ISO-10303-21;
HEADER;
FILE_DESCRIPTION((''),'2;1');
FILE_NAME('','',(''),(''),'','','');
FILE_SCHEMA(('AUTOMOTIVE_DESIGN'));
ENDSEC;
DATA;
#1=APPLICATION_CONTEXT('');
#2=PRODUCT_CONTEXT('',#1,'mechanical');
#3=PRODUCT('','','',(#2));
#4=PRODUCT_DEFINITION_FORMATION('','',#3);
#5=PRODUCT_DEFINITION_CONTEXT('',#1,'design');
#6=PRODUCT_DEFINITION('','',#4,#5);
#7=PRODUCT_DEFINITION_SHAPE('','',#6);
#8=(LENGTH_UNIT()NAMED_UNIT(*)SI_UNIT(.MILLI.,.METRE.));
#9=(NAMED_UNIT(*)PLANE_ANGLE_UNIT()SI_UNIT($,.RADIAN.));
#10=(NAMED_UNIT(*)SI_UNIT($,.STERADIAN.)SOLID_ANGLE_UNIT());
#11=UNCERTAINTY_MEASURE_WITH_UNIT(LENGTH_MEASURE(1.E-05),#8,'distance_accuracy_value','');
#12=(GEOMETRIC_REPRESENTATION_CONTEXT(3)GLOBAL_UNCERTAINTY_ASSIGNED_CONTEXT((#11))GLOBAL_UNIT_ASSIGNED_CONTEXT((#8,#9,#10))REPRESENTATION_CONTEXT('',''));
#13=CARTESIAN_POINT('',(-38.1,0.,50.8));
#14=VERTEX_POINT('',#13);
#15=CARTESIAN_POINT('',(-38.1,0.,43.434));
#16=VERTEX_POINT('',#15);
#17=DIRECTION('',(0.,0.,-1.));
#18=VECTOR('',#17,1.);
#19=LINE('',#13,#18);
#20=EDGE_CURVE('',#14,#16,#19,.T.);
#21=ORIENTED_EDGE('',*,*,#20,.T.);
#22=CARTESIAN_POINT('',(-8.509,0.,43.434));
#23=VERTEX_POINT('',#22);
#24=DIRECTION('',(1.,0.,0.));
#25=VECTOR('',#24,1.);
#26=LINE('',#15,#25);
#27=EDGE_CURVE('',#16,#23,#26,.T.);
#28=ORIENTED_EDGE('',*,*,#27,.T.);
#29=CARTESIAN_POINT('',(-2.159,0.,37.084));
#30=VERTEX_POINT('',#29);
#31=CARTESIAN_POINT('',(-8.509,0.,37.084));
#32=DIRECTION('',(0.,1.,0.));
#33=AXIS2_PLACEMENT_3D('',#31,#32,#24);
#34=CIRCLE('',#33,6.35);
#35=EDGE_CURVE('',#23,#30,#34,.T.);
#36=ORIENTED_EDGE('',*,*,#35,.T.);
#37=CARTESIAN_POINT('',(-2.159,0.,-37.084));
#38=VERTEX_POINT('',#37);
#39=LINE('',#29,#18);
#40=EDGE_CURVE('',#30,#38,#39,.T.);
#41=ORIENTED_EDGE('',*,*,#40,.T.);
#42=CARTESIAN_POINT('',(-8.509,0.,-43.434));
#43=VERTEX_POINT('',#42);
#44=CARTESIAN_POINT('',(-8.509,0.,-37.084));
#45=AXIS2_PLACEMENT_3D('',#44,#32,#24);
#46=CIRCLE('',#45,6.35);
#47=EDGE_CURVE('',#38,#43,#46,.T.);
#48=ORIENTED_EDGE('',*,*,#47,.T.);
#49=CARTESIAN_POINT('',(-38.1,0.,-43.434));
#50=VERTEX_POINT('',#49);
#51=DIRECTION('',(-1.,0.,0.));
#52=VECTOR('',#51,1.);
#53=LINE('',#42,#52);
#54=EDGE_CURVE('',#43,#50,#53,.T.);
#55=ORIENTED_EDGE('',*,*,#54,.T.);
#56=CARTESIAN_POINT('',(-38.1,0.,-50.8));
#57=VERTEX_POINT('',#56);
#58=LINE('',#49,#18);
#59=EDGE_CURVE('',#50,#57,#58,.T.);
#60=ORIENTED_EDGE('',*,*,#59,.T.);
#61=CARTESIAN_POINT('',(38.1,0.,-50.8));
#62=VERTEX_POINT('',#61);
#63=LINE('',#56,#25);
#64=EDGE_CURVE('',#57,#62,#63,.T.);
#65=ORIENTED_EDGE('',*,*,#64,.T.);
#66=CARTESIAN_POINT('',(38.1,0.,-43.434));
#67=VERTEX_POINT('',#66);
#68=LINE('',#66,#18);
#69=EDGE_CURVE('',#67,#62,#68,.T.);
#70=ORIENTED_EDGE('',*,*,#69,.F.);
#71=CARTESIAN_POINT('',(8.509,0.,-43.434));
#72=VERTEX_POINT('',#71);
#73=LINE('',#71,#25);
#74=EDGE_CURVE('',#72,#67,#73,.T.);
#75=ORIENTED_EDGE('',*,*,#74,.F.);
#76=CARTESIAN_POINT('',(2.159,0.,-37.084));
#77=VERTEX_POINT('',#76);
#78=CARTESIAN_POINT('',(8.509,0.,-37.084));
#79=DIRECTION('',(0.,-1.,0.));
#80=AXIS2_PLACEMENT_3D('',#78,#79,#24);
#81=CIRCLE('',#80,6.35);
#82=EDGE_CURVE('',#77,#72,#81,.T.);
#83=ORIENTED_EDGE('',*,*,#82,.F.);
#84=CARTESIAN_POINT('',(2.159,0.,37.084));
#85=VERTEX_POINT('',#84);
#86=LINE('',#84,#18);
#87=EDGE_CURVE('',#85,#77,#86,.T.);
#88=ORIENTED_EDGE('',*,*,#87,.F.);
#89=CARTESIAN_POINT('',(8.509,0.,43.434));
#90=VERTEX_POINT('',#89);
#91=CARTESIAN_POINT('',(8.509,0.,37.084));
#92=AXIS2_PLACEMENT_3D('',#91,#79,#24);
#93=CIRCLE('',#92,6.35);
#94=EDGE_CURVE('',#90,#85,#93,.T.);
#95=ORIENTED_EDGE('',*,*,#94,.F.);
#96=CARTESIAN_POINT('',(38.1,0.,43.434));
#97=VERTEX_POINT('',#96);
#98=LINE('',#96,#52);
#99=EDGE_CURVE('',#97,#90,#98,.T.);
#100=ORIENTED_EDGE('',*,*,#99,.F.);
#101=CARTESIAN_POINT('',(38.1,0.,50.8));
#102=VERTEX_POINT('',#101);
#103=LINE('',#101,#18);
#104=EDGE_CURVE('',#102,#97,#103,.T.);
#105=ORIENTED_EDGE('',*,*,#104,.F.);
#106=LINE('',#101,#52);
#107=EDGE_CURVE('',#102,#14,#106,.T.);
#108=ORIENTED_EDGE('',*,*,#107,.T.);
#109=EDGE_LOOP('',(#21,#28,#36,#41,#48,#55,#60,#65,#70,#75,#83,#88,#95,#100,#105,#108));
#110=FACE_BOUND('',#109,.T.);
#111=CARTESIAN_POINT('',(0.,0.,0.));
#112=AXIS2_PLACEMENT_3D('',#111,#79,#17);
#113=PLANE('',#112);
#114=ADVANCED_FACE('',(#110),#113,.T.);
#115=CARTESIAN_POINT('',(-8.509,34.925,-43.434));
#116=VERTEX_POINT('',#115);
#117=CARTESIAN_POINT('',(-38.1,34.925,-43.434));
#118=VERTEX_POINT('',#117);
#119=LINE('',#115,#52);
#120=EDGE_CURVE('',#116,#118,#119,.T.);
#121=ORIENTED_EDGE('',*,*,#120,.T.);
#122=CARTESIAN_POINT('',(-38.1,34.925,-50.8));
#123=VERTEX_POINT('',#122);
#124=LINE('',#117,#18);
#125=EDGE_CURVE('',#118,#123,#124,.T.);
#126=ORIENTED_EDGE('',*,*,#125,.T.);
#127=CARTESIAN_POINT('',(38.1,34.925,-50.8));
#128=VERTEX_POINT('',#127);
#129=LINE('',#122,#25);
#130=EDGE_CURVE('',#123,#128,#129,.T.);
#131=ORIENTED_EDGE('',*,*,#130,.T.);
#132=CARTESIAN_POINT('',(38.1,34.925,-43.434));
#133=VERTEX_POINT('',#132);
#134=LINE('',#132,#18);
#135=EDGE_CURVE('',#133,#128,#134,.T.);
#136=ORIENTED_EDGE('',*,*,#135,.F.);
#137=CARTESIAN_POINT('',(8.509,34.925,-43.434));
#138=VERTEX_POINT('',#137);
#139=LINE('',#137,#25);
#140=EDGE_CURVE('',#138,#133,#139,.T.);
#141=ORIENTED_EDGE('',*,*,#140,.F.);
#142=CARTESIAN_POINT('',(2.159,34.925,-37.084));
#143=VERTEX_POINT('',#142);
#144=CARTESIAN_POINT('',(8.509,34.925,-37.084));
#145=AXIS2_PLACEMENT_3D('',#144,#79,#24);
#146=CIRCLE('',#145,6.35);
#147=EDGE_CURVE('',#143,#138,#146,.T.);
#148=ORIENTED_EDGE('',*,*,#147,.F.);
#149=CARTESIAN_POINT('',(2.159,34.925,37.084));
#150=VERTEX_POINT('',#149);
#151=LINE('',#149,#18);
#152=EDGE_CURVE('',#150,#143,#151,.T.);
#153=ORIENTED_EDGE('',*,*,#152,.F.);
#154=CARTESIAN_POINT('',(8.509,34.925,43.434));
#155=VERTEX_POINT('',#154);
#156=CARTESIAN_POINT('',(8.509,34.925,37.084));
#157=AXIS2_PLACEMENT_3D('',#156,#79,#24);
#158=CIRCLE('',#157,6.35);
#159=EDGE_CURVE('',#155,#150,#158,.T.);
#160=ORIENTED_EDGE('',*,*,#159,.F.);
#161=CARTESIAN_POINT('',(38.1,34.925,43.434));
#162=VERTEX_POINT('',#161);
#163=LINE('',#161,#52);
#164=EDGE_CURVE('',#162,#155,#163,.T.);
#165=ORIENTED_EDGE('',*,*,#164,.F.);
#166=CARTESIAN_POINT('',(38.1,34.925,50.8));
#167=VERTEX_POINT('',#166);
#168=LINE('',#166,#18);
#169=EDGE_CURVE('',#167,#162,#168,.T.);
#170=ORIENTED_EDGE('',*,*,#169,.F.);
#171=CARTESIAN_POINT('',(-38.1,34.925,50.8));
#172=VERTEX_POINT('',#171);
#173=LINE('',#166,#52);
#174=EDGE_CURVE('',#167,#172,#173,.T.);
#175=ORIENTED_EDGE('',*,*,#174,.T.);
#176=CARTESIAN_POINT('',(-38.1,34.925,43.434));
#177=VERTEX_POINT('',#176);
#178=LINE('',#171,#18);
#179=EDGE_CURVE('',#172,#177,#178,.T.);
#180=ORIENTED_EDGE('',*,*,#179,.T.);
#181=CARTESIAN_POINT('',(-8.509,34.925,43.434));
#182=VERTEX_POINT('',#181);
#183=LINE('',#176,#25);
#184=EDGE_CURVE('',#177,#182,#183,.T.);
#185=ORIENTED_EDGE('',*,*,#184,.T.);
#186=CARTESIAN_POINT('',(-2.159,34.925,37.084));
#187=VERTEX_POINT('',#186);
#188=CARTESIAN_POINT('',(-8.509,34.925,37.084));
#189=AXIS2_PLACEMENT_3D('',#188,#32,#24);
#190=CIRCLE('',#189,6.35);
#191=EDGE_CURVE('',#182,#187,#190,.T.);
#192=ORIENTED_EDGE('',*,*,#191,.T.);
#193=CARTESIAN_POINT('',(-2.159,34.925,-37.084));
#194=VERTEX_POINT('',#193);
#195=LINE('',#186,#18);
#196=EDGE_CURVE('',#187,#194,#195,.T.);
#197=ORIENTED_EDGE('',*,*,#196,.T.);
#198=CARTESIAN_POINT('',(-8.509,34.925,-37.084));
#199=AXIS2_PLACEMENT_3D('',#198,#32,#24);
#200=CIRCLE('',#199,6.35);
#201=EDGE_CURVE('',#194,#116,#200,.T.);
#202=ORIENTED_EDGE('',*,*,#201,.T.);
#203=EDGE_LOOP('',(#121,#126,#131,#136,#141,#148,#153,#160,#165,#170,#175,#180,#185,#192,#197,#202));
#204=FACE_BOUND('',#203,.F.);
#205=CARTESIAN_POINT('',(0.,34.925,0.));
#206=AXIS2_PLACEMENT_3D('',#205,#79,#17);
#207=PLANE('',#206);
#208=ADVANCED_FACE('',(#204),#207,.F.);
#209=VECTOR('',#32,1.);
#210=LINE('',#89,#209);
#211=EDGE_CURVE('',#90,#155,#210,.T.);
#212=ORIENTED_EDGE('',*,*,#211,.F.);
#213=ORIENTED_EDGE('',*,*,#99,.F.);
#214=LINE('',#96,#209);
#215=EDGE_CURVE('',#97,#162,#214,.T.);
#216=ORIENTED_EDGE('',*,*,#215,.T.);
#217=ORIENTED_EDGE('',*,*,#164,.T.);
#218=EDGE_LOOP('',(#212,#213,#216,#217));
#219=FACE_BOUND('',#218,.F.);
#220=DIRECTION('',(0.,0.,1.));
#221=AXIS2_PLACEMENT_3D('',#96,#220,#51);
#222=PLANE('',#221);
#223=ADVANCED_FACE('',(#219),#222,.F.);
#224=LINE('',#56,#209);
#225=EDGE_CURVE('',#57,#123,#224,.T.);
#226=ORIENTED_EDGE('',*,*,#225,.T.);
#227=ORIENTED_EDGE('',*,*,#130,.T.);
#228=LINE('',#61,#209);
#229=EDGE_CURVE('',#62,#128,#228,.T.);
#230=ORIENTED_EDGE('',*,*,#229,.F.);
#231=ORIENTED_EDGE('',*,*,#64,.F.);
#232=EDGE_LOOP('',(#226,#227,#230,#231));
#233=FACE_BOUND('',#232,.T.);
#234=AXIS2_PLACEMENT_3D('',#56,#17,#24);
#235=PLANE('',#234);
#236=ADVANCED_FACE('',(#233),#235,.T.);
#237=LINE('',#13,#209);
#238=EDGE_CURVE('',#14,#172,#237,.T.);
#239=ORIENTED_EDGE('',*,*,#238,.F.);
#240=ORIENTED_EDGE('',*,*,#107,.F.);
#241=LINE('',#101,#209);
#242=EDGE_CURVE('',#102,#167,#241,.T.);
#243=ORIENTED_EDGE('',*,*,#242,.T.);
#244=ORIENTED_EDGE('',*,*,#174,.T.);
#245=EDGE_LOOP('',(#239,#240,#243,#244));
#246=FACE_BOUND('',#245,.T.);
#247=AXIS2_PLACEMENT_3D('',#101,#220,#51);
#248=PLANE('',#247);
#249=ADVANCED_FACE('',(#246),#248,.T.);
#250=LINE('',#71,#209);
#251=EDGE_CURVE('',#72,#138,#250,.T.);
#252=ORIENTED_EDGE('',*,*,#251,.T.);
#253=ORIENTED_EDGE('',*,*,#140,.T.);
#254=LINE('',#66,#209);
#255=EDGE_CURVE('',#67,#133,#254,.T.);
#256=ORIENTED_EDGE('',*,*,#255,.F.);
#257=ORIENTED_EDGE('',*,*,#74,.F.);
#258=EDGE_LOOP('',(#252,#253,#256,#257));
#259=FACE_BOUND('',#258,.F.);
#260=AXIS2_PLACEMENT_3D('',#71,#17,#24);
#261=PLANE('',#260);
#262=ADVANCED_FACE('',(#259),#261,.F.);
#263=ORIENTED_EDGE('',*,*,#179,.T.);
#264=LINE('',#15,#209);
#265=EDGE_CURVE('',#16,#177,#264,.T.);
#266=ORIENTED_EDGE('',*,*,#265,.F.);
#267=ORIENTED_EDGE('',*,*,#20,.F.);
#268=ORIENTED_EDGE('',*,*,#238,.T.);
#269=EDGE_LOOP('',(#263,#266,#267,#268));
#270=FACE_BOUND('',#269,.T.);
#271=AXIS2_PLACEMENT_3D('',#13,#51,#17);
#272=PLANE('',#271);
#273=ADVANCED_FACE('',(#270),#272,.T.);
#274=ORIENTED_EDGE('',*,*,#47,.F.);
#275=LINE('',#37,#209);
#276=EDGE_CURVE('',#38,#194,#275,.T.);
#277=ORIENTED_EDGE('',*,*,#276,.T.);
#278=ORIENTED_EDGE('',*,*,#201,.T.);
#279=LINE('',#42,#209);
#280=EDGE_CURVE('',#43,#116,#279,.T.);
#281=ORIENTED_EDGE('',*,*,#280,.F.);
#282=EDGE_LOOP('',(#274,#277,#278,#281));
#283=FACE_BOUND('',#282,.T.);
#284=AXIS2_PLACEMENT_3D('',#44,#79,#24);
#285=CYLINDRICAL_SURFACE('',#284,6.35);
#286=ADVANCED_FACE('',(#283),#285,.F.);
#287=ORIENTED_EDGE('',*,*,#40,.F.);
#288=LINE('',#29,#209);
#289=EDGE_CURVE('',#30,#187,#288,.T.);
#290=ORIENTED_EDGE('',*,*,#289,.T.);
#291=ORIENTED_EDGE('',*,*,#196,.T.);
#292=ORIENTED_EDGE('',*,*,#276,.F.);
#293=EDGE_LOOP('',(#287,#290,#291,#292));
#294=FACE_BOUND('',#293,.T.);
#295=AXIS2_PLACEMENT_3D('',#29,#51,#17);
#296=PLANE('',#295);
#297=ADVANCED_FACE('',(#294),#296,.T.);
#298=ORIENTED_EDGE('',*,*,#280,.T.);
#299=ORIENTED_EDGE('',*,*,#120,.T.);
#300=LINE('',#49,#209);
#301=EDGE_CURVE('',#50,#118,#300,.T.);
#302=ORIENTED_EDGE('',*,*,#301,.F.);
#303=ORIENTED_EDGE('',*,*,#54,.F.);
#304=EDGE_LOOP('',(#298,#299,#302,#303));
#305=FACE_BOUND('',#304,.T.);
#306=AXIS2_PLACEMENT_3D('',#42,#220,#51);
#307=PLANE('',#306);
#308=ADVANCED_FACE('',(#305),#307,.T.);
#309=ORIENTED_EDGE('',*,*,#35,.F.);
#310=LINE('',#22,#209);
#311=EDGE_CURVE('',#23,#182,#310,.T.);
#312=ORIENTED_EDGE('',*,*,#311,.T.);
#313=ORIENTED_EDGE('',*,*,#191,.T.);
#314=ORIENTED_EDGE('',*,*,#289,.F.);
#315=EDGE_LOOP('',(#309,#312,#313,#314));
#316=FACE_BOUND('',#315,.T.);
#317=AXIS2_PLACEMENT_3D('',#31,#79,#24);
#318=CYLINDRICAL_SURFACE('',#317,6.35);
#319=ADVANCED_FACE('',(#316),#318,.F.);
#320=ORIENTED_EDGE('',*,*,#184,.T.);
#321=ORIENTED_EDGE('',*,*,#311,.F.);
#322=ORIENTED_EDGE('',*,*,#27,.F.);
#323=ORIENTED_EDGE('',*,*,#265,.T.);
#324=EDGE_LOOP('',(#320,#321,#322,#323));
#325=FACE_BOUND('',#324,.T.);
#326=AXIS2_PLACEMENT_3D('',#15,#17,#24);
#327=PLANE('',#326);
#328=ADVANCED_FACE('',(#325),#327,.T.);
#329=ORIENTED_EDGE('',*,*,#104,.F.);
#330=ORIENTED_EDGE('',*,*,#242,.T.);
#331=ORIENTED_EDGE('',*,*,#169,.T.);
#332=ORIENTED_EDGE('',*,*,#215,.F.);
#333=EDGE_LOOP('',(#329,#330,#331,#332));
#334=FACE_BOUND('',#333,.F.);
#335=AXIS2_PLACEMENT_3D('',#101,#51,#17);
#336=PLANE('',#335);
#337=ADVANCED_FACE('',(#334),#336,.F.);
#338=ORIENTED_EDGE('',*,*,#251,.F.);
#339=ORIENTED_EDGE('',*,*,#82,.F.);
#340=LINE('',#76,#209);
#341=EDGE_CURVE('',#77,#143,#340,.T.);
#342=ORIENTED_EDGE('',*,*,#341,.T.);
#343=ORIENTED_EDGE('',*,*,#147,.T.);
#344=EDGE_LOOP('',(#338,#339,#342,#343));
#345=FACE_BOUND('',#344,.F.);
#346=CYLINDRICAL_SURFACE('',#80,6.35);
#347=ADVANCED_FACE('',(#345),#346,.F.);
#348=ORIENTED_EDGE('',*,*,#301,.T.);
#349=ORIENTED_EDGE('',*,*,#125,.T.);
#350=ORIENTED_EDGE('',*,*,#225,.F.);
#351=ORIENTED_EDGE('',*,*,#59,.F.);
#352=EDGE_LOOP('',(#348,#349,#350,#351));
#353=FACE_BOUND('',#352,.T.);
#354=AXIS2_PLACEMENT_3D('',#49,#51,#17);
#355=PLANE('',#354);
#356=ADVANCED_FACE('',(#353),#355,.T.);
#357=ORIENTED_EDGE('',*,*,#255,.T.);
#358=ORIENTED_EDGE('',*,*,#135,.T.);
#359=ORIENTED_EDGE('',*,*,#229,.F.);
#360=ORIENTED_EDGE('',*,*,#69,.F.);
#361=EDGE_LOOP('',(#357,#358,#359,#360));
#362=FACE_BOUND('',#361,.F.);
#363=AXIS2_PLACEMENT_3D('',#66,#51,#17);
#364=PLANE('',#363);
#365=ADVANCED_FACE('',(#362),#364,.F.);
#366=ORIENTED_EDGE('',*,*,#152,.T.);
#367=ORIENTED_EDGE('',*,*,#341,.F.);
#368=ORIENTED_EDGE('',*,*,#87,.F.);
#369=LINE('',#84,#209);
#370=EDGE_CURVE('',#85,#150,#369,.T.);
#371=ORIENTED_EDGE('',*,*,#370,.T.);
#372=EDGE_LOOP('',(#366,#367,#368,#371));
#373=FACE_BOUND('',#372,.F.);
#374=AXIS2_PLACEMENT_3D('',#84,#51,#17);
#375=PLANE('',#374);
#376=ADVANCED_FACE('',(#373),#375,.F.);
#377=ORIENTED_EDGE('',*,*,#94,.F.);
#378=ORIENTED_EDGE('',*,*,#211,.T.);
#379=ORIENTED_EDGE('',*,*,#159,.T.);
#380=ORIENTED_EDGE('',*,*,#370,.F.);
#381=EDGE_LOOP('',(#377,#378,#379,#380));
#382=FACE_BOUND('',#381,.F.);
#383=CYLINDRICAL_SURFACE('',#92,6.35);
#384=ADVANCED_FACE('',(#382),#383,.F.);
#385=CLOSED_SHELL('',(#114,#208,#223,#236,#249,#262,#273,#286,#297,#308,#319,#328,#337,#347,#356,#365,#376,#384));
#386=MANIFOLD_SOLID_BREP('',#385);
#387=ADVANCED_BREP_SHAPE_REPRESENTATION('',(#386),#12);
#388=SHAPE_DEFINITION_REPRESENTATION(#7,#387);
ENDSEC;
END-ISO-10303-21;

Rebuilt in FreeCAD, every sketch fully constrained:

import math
import FreeCAD as App
import Part
import Sketcher
Q = App.Units.Quantity

doc = App.newDocument("Part")
body = doc.addObject("PartDesign::Body", "Body")

# Sketch on XZ plane
sketch1 = body.newObject("Sketcher::SketchObject", "Sketch")
sketch1.AttachmentSupport = (doc.getObject("XZ_Plane"), [""])
sketch1.MapMode = "FlatFace"
sketch1.addGeometry(Part.LineSegment(App.Vector(38, 43, 0), App.Vector(38, 51, 0)), False)
sketch1.addGeometry(Part.LineSegment(App.Vector(38, 51, 0), App.Vector(-38, 51, 0)), False)
sketch1.addGeometry(Part.LineSegment(App.Vector(-38, 51, 0), App.Vector(-38, 43, 0)), False)
sketch1.addGeometry(Part.LineSegment(App.Vector(-38, 43, 0), App.Vector(-9, 43, 0)), False)
sketch1.addGeometry(Part.ArcOfCircle(Part.Circle(App.Vector(-9, 37, 0), App.Vector(0, 0, 1), 6), math.radians(0), math.radians(90)), False)
sketch1.addGeometry(Part.LineSegment(App.Vector(-2, 37, 0), App.Vector(-2, -37, 0)), False)
sketch1.addGeometry(Part.ArcOfCircle(Part.Circle(App.Vector(-9, -37, 0), App.Vector(0, 0, 1), 6), math.radians(-90), math.radians(0)), False)
sketch1.addGeometry(Part.LineSegment(App.Vector(-9, -43, 0), App.Vector(-38, -43, 0)), False)
sketch1.addGeometry(Part.LineSegment(App.Vector(-38, -43, 0), App.Vector(-38, -51, 0)), False)
sketch1.addGeometry(Part.LineSegment(App.Vector(-38, -51, 0), App.Vector(38, -51, 0)), False)
sketch1.addGeometry(Part.LineSegment(App.Vector(38, -51, 0), App.Vector(38, -43, 0)), False)
sketch1.addGeometry(Part.LineSegment(App.Vector(38, -43, 0), App.Vector(9, -43, 0)), False)
sketch1.addGeometry(Part.ArcOfCircle(Part.Circle(App.Vector(9, -37, 0), App.Vector(0, 0, 1), 6), math.radians(180), math.radians(270)), False)
sketch1.addGeometry(Part.LineSegment(App.Vector(2, -37, 0), App.Vector(2, 37, 0)), False)
sketch1.addGeometry(Part.ArcOfCircle(Part.Circle(App.Vector(9, 37, 0), App.Vector(0, 0, 1), 6), math.radians(90), math.radians(180)), False)
sketch1.addGeometry(Part.LineSegment(App.Vector(9, 43, 0), App.Vector(38, 43, 0)), False)
sketch1.addConstraint(Sketcher.Constraint("Coincident", 0, 2, 1, 1))
sketch1.addConstraint(Sketcher.Constraint("Coincident", 1, 2, 2, 1))
sketch1.addConstraint(Sketcher.Constraint("Coincident", 2, 2, 3, 1))
sketch1.addConstraint(Sketcher.Constraint("Tangent", 3, 2, 4, 2))
sketch1.addConstraint(Sketcher.Constraint("Tangent", 4, 1, 5, 1))
sketch1.addConstraint(Sketcher.Constraint("Tangent", 5, 2, 6, 2))
sketch1.addConstraint(Sketcher.Constraint("Tangent", 6, 1, 7, 1))
sketch1.addConstraint(Sketcher.Constraint("Coincident", 7, 2, 8, 1))
sketch1.addConstraint(Sketcher.Constraint("Coincident", 8, 2, 9, 1))
sketch1.addConstraint(Sketcher.Constraint("Coincident", 9, 2, 10, 1))
sketch1.addConstraint(Sketcher.Constraint("Coincident", 10, 2, 11, 1))
sketch1.addConstraint(Sketcher.Constraint("Tangent", 11, 2, 12, 2))
sketch1.addConstraint(Sketcher.Constraint("Tangent", 12, 1, 13, 1))
sketch1.addConstraint(Sketcher.Constraint("Tangent", 13, 2, 14, 2))
sketch1.addConstraint(Sketcher.Constraint("Tangent", 14, 1, 15, 1))
sketch1.addConstraint(Sketcher.Constraint("Coincident", 15, 2, 0, 1))
sketch1.addConstraint(Sketcher.Constraint("Vertical", 0))
sketch1.addConstraint(Sketcher.Constraint("Horizontal", 1))
sketch1.addConstraint(Sketcher.Constraint("Vertical", 2))
sketch1.addConstraint(Sketcher.Constraint("Horizontal", 3))
sketch1.addConstraint(Sketcher.Constraint("Vertical", 5))
sketch1.addConstraint(Sketcher.Constraint("Horizontal", 7))
sketch1.addConstraint(Sketcher.Constraint("Vertical", 8))
sketch1.addConstraint(Sketcher.Constraint("Horizontal", 9))
sketch1.addConstraint(Sketcher.Constraint("Vertical", 10))
sketch1.addConstraint(Sketcher.Constraint("Horizontal", 11))
sketch1.addConstraint(Sketcher.Constraint("Vertical", 13))
sketch1.addConstraint(Sketcher.Constraint("Horizontal", 15))
sketch1.addConstraint(Sketcher.Constraint("Equal", 4, 6))
sketch1.addConstraint(Sketcher.Constraint("Equal", 6, 12))
sketch1.addConstraint(Sketcher.Constraint("Equal", 12, 14))
sketch1.addConstraint(Sketcher.Constraint("Symmetric", 4, 3, 12, 3, -1, 1))
sketch1.addConstraint(Sketcher.Constraint("Symmetric", 0, 2, 8, 2, -1, 1))
sketch1.addConstraint(Sketcher.Constraint("Symmetric", 7, 2, 10, 2, -2))
sketch1.addConstraint(Sketcher.Constraint("Symmetric", 2, 2, 15, 2, -2))
sketch1.addConstraint(Sketcher.Constraint("DistanceX", 1, 2, 1, 1, Q("3 in")))
sketch1.addConstraint(Sketcher.Constraint("Radius", 4, Q("0.25 in")))
sketch1.addConstraint(Sketcher.Constraint("DistanceY", -1, 1, 0, 2, Q("2 in")))
sketch1.addConstraint(Sketcher.Constraint("DistanceY", 0, 1, 0, 2, Q("0.29 in")))
sketch1.addConstraint(Sketcher.Constraint("DistanceX", 3, 1, 3, 2, Q("1.165 in")))
pad1 = body.newObject("PartDesign::Pad", "Pad")
pad1.Profile = sketch1
pad1.Length = Q("1.375 in")
pad1.Reversed = True

doc.recompute()
